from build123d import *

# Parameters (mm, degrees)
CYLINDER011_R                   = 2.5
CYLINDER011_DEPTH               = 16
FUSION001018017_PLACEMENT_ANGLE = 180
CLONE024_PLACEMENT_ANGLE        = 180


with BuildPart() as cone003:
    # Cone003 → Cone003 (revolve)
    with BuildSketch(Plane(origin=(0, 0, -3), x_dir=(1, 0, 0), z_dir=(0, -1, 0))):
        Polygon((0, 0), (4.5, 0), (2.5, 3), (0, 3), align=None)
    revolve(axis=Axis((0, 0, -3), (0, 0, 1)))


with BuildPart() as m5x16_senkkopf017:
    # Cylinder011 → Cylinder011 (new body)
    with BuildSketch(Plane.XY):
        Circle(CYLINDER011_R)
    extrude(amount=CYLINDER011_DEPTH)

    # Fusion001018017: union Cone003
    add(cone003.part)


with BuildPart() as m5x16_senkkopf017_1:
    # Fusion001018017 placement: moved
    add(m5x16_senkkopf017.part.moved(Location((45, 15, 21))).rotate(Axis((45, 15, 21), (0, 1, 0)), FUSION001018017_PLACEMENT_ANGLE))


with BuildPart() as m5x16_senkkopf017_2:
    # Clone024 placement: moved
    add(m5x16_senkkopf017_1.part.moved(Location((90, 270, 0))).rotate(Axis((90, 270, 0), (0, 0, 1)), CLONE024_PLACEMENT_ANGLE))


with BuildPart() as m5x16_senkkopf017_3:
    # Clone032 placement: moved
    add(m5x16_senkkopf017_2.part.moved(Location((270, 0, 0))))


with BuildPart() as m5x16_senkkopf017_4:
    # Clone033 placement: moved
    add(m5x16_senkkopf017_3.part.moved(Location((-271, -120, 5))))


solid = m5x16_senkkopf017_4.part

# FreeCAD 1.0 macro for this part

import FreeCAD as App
import Part
import Sketcher

V = App.Vector


def add_polygon(sketch, points):
    """Adds a closed chain of lines whose ends are joined by coincident constraints."""
    first, n = sketch.GeometryCount, len(points)
    for a, b in zip(points, points[1:] + points[:1]):
        sketch.addGeometry(Part.LineSegment(App.Vector(*a, 0), App.Vector(*b, 0)), False)
    for i in range(n):
        sketch.addConstraint(Sketcher.Constraint("Coincident", first + i, 2, first + (i + 1) % n, 1))

doc = App.newDocument("Part")
body = doc.addObject("PartDesign::Body", "Body")

sketch1 = body.newObject("Sketcher::SketchObject", "Sketch")
sketch1.AttachmentSupport = (doc.getObject("XZ_Plane"), [""])
sketch1.MapMode = "FlatFace"
add_polygon(sketch1, [(0, -3), (4.5, -3), (2.5, 0), (0, 0)])
sketch1.addConstraint([
    Sketcher.Constraint("Horizontal", 0),
    Sketcher.Constraint("Horizontal", 2),
    Sketcher.Constraint("Vertical", 3),
    Sketcher.Constraint("Coincident", 2, 2, -1, 1),
    Sketcher.Constraint("DistanceY", 3, 2, 3, 1, 3.0),
    Sketcher.Constraint("DistanceX", 0, 1, 0, 2, 4.5),
    Sketcher.Constraint("DistanceX", 2, 2, 2, 1, 2.5),
])
revolution = body.newObject("PartDesign::Revolution", "Revolution")
revolution.Profile = sketch1
revolution.ReferenceAxis = (sketch1, ["V_Axis"])
revolution.Angle = 360
body2 = doc.addObject("PartDesign::Body", "Body001")

sketch2 = body2.newObject("Sketcher::SketchObject", "Sketch001")
sketch2.AttachmentSupport = (doc.getObject("XY_Plane001"), [""])
sketch2.MapMode = "FlatFace"
sketch2.addGeometry(Part.Circle(V(0, 0, 0), V(0, 0, 1), 2.5), False)
sketch2.addConstraint([
    Sketcher.Constraint("Coincident", 0, 3, -1, 1),
    Sketcher.Constraint("Diameter", 0, 5.0),
])
pad1 = body2.newObject("PartDesign::Pad", "Pad")
pad1.Profile = sketch2
pad1.Length = 16
doc.recompute()

boolean = body2.newObject("PartDesign::Boolean", "Boolean")
boolean.Type = "Fuse"
boolean.addObjects([body])
body3 = doc.addObject("PartDesign::Body", "Body002")
doc.recompute()

body2.Placement = App.Placement(V(45, 15, 21), App.Rotation(V(0, 1, 0), 180))
boolean2 = body3.newObject("PartDesign::Boolean", "Boolean001")
boolean2.Type = "Fuse"
boolean2.addObjects([body2])
body4 = doc.addObject("PartDesign::Body", "Body003")
doc.recompute()

body3.Placement = App.Placement(V(90, 270, 0), App.Rotation(V(0, 0, 1), 180))
boolean3 = body4.newObject("PartDesign::Boolean", "Boolean002")
boolean3.Type = "Fuse"
boolean3.addObjects([body3])
body5 = doc.addObject("PartDesign::Body", "Body004")
doc.recompute()

body4.Placement = App.Placement(V(270, 0, 0), App.Rotation(V(0, 0, 1), 0))
boolean4 = body5.newObject("PartDesign::Boolean", "Boolean003")
boolean4.Type = "Fuse"
boolean4.addObjects([body4])
body6 = doc.addObject("PartDesign::Body", "Body005")
doc.recompute()

body5.Placement = App.Placement(V(-271, -120, 5), App.Rotation(V(0, 0, 1), 0))
boolean5 = body6.newObject("PartDesign::Boolean", "Boolean004")
boolean5.Type = "Fuse"
boolean5.addObjects([body5])

doc.recompute()
